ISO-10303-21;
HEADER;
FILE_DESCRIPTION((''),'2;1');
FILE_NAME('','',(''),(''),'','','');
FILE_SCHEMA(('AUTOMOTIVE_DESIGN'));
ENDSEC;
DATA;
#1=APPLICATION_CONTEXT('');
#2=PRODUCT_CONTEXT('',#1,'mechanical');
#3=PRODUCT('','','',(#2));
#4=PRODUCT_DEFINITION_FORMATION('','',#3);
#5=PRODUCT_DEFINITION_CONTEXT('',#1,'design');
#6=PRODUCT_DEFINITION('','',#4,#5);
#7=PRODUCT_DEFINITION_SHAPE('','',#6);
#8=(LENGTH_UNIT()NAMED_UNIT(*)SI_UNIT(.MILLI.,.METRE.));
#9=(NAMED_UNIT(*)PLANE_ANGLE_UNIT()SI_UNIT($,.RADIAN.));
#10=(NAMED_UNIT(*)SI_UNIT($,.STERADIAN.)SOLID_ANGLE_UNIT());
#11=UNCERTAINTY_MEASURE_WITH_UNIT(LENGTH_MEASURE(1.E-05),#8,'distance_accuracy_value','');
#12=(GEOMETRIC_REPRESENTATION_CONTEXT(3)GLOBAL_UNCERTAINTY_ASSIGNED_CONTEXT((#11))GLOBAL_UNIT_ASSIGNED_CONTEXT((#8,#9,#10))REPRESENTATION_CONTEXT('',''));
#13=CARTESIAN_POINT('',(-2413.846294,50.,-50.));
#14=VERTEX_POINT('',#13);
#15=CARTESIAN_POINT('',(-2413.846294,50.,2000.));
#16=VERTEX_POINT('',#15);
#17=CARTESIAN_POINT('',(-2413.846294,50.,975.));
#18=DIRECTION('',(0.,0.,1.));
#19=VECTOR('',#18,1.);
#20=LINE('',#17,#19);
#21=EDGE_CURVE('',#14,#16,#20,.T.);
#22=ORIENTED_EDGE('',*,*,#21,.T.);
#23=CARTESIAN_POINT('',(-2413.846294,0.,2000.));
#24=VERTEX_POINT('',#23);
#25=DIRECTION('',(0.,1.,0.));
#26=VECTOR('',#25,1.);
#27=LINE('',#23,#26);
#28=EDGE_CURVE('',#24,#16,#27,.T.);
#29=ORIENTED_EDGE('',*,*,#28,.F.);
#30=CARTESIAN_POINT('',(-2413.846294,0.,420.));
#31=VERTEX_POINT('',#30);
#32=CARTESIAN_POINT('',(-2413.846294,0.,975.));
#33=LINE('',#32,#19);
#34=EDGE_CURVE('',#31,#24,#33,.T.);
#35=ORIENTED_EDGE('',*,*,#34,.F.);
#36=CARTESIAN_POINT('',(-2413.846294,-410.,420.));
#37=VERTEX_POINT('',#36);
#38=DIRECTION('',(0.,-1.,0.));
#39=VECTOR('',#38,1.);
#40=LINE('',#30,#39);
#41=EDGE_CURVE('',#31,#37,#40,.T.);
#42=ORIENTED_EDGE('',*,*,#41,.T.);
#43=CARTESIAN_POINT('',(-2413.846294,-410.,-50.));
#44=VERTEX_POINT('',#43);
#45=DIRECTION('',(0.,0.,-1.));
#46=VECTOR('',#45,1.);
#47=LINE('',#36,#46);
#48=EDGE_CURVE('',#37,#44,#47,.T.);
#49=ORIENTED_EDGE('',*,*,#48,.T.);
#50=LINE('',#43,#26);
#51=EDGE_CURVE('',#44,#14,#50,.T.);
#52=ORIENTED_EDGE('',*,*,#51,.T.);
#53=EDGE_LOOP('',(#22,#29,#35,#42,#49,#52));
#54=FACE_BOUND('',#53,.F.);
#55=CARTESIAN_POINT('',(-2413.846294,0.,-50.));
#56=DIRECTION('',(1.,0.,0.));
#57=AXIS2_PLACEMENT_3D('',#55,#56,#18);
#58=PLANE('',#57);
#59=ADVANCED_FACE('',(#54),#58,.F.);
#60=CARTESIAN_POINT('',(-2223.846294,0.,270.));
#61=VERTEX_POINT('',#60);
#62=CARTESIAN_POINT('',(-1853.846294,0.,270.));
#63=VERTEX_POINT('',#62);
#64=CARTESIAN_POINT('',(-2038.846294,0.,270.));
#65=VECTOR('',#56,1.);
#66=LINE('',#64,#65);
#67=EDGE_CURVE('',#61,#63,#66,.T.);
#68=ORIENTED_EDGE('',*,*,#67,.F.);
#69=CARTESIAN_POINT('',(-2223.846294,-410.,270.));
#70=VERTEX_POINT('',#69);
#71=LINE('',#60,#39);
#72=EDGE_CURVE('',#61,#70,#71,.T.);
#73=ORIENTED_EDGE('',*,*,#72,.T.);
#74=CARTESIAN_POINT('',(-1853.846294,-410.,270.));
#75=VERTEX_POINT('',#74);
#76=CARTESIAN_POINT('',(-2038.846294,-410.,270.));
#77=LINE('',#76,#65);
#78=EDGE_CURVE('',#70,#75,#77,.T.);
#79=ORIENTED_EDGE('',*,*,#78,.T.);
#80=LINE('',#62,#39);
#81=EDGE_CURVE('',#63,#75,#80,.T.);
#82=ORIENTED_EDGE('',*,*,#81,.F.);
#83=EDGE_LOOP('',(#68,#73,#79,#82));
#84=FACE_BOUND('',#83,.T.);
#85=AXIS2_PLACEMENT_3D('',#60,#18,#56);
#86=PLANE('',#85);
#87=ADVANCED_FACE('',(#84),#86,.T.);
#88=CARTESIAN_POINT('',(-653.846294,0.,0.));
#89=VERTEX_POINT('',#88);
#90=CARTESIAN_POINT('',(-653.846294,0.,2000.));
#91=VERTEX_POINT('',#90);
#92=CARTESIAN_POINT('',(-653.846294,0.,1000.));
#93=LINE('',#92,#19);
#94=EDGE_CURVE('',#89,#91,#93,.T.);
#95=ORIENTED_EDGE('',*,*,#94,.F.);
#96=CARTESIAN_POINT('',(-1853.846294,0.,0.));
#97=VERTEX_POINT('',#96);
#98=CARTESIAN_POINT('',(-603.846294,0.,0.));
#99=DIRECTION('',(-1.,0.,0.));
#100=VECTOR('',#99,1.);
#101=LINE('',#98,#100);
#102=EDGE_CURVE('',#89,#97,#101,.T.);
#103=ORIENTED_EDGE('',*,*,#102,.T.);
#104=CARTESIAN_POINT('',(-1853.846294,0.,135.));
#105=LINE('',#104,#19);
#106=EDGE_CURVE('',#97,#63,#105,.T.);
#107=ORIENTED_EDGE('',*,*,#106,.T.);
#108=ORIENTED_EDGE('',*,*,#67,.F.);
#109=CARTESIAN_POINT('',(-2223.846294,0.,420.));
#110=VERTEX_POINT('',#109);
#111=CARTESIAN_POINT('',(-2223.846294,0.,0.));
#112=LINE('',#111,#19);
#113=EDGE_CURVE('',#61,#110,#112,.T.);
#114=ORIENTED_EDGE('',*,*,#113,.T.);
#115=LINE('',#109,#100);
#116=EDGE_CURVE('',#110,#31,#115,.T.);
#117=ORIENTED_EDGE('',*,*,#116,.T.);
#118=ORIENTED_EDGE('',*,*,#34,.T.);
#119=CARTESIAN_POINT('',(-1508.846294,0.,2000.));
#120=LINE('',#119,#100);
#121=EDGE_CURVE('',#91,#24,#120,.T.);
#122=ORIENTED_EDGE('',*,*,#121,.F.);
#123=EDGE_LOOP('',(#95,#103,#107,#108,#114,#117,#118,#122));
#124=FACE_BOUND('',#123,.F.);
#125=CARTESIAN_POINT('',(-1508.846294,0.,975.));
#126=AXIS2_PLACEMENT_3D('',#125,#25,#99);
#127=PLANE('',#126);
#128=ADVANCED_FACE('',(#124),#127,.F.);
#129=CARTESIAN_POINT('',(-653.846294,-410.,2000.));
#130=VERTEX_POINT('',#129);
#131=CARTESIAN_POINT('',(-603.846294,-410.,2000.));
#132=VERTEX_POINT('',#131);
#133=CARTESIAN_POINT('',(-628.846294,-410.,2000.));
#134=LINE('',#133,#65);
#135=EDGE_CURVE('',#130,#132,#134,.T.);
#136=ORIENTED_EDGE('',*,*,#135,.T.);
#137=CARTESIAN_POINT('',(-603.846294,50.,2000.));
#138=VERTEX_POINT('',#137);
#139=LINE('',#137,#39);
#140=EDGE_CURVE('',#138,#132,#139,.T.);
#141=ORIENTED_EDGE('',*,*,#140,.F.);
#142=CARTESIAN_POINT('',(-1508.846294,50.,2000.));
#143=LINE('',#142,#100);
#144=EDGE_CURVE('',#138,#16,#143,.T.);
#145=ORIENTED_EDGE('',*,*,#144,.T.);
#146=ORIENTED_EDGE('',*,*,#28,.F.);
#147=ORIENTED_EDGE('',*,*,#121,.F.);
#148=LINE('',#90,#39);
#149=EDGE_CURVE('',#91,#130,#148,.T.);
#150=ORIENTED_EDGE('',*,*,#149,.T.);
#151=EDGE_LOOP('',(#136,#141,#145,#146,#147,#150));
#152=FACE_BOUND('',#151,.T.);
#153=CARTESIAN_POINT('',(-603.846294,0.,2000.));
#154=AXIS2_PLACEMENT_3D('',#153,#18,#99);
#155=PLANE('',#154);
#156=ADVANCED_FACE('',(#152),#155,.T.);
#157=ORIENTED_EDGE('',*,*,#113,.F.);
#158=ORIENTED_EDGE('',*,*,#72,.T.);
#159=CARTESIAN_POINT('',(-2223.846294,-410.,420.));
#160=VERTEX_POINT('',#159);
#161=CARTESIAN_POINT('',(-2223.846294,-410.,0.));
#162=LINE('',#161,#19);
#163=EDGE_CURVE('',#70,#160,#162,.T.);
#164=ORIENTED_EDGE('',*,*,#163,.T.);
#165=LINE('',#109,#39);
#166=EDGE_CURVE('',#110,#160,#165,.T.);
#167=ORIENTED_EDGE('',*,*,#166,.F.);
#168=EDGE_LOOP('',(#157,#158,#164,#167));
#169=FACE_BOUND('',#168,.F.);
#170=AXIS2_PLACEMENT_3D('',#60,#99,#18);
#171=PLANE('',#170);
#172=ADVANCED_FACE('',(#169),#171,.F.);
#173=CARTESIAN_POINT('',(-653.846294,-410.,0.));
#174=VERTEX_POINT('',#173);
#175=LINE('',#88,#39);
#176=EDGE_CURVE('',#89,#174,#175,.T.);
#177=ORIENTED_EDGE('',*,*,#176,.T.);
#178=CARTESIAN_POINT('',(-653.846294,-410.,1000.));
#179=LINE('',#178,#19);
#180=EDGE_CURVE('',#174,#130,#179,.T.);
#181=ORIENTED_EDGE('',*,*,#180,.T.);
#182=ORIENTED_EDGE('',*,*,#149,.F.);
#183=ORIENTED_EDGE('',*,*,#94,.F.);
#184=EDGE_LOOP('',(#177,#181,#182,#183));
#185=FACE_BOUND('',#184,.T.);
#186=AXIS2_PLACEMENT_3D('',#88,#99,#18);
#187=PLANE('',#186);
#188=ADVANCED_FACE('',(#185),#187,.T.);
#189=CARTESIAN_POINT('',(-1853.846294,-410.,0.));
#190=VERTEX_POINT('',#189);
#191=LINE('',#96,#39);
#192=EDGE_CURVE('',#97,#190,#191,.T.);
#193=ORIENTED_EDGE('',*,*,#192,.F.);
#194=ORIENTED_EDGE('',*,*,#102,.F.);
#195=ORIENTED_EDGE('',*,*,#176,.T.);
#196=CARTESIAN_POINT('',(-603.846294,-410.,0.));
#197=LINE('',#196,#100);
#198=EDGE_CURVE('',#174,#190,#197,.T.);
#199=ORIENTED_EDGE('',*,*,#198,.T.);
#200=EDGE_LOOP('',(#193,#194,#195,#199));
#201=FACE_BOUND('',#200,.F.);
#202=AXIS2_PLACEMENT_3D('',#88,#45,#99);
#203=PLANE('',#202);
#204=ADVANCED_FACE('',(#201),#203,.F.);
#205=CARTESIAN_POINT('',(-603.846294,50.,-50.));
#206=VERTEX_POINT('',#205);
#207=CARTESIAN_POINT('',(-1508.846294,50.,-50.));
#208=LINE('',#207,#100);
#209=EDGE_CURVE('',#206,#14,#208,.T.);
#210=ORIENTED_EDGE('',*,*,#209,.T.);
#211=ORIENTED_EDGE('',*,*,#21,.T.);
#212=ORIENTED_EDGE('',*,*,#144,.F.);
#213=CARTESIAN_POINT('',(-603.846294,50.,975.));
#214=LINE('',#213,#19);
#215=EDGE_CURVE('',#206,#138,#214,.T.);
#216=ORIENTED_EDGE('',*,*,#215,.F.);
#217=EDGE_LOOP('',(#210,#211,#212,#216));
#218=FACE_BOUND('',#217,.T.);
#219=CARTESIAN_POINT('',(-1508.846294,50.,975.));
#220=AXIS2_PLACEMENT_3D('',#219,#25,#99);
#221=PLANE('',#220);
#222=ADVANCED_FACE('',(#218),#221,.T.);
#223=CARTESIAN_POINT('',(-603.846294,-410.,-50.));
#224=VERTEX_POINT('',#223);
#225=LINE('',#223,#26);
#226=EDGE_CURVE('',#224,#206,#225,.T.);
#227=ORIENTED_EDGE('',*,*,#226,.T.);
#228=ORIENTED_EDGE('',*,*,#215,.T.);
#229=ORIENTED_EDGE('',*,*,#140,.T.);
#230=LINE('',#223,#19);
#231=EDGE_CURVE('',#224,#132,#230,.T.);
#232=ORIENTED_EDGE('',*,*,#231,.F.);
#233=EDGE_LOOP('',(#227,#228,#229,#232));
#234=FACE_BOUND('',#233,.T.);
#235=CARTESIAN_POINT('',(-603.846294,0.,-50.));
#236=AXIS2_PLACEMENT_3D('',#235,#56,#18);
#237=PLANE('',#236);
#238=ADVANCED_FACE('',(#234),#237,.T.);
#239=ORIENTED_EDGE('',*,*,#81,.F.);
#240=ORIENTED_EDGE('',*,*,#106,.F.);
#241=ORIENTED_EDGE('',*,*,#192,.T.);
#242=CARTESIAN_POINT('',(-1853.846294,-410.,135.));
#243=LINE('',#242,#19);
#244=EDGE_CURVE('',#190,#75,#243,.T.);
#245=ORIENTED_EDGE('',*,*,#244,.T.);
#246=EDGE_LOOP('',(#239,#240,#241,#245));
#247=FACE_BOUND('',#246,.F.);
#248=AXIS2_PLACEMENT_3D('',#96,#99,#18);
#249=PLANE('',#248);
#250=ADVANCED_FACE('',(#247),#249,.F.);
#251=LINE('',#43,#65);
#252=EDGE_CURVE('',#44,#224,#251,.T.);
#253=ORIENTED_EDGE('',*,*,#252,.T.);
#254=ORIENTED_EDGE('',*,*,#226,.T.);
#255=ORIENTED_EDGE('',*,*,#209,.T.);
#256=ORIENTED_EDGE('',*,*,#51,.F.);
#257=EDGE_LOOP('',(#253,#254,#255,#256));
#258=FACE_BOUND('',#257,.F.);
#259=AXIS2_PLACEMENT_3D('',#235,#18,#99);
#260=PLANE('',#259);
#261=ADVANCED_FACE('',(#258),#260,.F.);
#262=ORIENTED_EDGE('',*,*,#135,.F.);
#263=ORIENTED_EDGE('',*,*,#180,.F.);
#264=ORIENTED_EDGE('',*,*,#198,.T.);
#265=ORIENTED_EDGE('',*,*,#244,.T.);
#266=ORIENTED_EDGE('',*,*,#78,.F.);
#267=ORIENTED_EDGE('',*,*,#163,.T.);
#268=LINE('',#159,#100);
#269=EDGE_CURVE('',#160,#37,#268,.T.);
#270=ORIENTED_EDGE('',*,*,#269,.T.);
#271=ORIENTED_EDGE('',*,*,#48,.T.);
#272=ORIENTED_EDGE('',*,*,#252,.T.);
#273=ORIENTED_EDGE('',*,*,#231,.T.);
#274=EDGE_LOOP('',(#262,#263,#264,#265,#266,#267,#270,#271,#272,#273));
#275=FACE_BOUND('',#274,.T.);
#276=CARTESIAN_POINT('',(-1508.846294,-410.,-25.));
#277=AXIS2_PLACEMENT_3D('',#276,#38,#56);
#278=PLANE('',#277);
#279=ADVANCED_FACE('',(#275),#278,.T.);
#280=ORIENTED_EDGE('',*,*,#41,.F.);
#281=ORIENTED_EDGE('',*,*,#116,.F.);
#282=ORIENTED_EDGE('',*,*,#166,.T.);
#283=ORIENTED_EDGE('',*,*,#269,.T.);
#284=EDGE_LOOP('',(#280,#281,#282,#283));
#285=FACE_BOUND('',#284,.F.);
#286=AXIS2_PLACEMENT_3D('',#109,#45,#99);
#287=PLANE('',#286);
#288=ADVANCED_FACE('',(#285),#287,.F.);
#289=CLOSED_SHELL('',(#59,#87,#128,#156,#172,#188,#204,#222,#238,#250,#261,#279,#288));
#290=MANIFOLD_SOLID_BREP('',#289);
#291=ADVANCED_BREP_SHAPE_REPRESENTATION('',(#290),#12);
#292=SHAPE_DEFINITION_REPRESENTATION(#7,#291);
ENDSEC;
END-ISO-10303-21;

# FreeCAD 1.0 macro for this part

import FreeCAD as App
import Part
import Sketcher
from FreeCAD import Vector
Q = App.Units.Quantity

doc = App.newDocument("Part")
body = doc.addObject("PartDesign::Body", "Body")

sketch1 = body.newObject("Sketcher::SketchObject", "Sketch")
sketch1.AttachmentSupport = (doc.getObject("XZ_Plane"), [""])
sketch1.MapMode = "FlatFace"
sketch1.addGeometry([
    Part.LineSegment(Vector(-2413.846294, -50, 0), Vector(-603.846294, -50, 0)),
    Part.LineSegment(Vector(-603.846294, -50, 0), Vector(-603.846294, 2000, 0)),
    Part.LineSegment(Vector(-603.846294, 2000, 0), Vector(-653.846294, 2000, 0)),
    Part.LineSegment(Vector(-653.846294, 2000, 0), Vector(-653.846294, 0, 0)),
    Part.LineSegment(Vector(-653.846294, 0, 0), Vector(-1853.846294, 0, 0)),
    Part.LineSegment(Vector(-1853.846294, 0, 0), Vector(-1853.846294, 270, 0)),
    Part.LineSegment(Vector(-1853.846294, 270, 0), Vector(-2223.846294, 270, 0)),
    Part.LineSegment(Vector(-2223.846294, 270, 0), Vector(-2223.846294, 420, 0)),
    Part.LineSegment(Vector(-2223.846294, 420, 0), Vector(-2413.846294, 420, 0)),
    Part.LineSegment(Vector(-2413.846294, 420, 0), Vector(-2413.846294, -50, 0)),
], False)
sketch1.addConstraint([
    Sketcher.Constraint("Coincident", 0, 2, 1, 1),
    Sketcher.Constraint("Coincident", 1, 2, 2, 1),
    Sketcher.Constraint("Coincident", 2, 2, 3, 1),
    Sketcher.Constraint("Coincident", 3, 2, 4, 1),
    Sketcher.Constraint("Coincident", 4, 2, 5, 1),
    Sketcher.Constraint("Coincident", 5, 2, 6, 1),
    Sketcher.Constraint("Coincident", 6, 2, 7, 1),
    Sketcher.Constraint("Coincident", 7, 2, 8, 1),
    Sketcher.Constraint("Coincident", 8, 2, 9, 1),
    Sketcher.Constraint("Coincident", 9, 2, 0, 1),
    Sketcher.Constraint("Horizontal", 0),
    Sketcher.Constraint("Vertical", 1),
    Sketcher.Constraint("Horizontal", 2),
    Sketcher.Constraint("Vertical", 3),
    Sketcher.Constraint("Horizontal", 4),
    Sketcher.Constraint("Vertical", 5),
    Sketcher.Constraint("Horizontal", 6),
    Sketcher.Constraint("Vertical", 7),
    Sketcher.Constraint("Horizontal", 8),
    Sketcher.Constraint("Vertical", 9),
    Sketcher.Constraint("PointOnObject", 3, 2, -1),
    Sketcher.Constraint("DistanceX", 0, 1, 0, 2, Q("1810 mm")),
    Sketcher.Constraint("DistanceX", 2, 2, 2, 1, Q("50 mm")),
    Sketcher.Constraint("DistanceX", 4, 2, 4, 1, Q("1200 mm")),
    Sketcher.Constraint("DistanceX", 6, 2, 6, 1, Q("370 mm")),
    Sketcher.Constraint("DistanceY", 1, 1, 1, 2, Q("2050 mm")),
    Sketcher.Constraint("DistanceY", 3, 2, 3, 1, Q("2000 mm")),
    Sketcher.Constraint("DistanceY", 5, 1, 5, 2, Q("270 mm")),
    Sketcher.Constraint("DistanceY", 7, 1, 7, 2, Q("150 mm")),
    Sketcher.Constraint("DistanceX", 0, 2, -1, 1, Q("603.846294 mm")),
])
pad1 = body.newObject("PartDesign::Pad", "Pad")
pad1.Profile = sketch1
pad1.Length = 410

sketch2 = body.newObject("Sketcher::SketchObject", "Sketch001")
sketch2.AttachmentSupport = (doc.getObject("XZ_Plane"), [""])
sketch2.MapMode = "FlatFace"
sketch2.addGeometry([
    Part.LineSegment(Vector(-603.846294, 2000, 0), Vector(-603.846294, -50, 0)),
    Part.LineSegment(Vector(-603.846294, -50, 0), Vector(-2413.846294, -50, 0)),
    Part.LineSegment(Vector(-2413.846294, -50, 0), Vector(-2413.846294, 2000, 0)),
    Part.LineSegment(Vector(-2413.846294, 2000, 0), Vector(-603.846294, 2000, 0)),
], False)
sketch2.addConstraint([
    Sketcher.Constraint("Coincident", 0, 2, 1, 1),
    Sketcher.Constraint("Coincident", 1, 2, 2, 1),
    Sketcher.Constraint("Coincident", 2, 2, 3, 1),
    Sketcher.Constraint("Coincident", 3, 2, 0, 1),
    Sketcher.Constraint("Vertical", 0),
    Sketcher.Constraint("Horizontal", 1),
    Sketcher.Constraint("Vertical", 2),
    Sketcher.Constraint("Horizontal", 3),
    Sketcher.Constraint("DistanceX", 1, 2, 1, 1, Q("1810 mm")),
    Sketcher.Constraint("DistanceY", 0, 2, 0, 1, Q("2050 mm")),
    Sketcher.Constraint("DistanceY", 0, 2, -1, 1, Q("50 mm")),
    Sketcher.Constraint("DistanceX", 0, 2, -1, 1, Q("603.846294 mm")),
])
pad2 = body.newObject("PartDesign::Pad", "Pad001")
pad2.Profile = sketch2
pad2.Length = 50
pad2.Reversed = True

doc.recompute()
